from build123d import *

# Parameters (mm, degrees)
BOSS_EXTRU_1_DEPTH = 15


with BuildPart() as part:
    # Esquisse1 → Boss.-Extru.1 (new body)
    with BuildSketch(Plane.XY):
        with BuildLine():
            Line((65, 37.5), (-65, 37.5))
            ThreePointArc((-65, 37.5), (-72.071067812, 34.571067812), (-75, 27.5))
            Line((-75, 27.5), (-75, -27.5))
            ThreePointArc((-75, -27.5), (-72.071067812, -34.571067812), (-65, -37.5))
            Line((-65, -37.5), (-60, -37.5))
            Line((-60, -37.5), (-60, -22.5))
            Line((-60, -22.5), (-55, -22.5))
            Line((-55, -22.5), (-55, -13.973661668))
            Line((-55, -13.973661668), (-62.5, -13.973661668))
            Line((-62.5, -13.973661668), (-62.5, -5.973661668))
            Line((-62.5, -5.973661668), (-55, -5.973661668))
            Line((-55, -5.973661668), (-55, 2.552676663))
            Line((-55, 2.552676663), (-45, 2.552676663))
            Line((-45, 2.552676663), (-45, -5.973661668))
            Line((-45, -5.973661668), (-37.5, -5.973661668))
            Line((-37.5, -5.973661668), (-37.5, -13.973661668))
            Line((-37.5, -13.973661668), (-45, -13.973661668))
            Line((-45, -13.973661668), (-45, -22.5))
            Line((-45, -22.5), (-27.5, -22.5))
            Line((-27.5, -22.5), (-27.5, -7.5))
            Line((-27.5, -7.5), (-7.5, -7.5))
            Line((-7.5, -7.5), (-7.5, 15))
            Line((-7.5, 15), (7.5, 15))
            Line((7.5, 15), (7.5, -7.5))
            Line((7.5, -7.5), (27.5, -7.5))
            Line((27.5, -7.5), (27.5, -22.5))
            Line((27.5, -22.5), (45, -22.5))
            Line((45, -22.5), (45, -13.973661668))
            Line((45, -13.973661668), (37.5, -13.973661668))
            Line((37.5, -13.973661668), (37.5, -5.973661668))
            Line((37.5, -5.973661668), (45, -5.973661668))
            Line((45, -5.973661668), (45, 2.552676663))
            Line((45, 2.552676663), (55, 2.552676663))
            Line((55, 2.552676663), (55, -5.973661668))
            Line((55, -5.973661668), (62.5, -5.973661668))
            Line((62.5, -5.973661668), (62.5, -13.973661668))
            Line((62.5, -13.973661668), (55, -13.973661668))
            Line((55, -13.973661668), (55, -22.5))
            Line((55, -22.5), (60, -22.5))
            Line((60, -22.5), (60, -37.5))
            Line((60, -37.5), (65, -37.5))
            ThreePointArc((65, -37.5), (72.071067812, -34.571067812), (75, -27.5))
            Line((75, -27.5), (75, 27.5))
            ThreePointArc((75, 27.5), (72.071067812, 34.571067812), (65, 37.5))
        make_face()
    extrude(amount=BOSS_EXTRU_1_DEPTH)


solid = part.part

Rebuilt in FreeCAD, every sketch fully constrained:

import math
import FreeCAD as App
import Part
import Sketcher

V = App.Vector

doc = App.newDocument("Part")
body = doc.addObject("PartDesign::Body", "Body")

sketch1 = doc.addObject("Sketcher::SketchObject", "Sketch")
body.addObject(sketch1)
sketch1.AttachmentSupport = (doc.XY_Plane, [""])
sketch1.MapMode = "FlatFace"
sketch1.addGeometry([
    Part.LineSegment(V(65, 37.5, 0), V(-65, 37.5, 0)),
    Part.ArcOfCircle(Part.Circle(V(-65, 27.5, 0), V(0, 0, 1), 10), math.radians(90), math.radians(180)),
    Part.LineSegment(V(-75, 27.5, 0), V(-75, -27.5, 0)),
    Part.ArcOfCircle(Part.Circle(V(-65, -27.5, 0), V(0, 0, 1), 10), math.radians(180), math.radians(270)),
    Part.LineSegment(V(-65, -37.5, 0), V(-60, -37.5, 0)),
    Part.LineSegment(V(-60, -37.5, 0), V(-60, -22.5, 0)),
    Part.LineSegment(V(-60, -22.5, 0), V(-55, -22.5, 0)),
    Part.LineSegment(V(-55, -22.5, 0), V(-55, -13.973662, 0)),
    Part.LineSegment(V(-55, -13.973662, 0), V(-62.5, -13.973662, 0)),
    Part.LineSegment(V(-62.5, -13.973662, 0), V(-62.5, -5.973662, 0)),
    Part.LineSegment(V(-62.5, -5.973662, 0), V(-55, -5.973662, 0)),
    Part.LineSegment(V(-55, -5.973662, 0), V(-55, 2.552677, 0)),
    Part.LineSegment(V(-55, 2.552677, 0), V(-45, 2.552677, 0)),
    Part.LineSegment(V(-45, 2.552677, 0), V(-45, -5.973662, 0)),
    Part.LineSegment(V(-45, -5.973662, 0), V(-37.5, -5.973662, 0)),
    Part.LineSegment(V(-37.5, -5.973662, 0), V(-37.5, -13.973662, 0)),
    Part.LineSegment(V(-37.5, -13.973662, 0), V(-45, -13.973662, 0)),
    Part.LineSegment(V(-45, -13.973662, 0), V(-45, -22.5, 0)),
    Part.LineSegment(V(-45, -22.5, 0), V(-27.5, -22.5, 0)),
    Part.LineSegment(V(-27.5, -22.5, 0), V(-27.5, -7.5, 0)),
    Part.LineSegment(V(-27.5, -7.5, 0), V(-7.5, -7.5, 0)),
    Part.LineSegment(V(-7.5, -7.5, 0), V(-7.5, 15, 0)),
    Part.LineSegment(V(-7.5, 15, 0), V(7.5, 15, 0)),
    Part.LineSegment(V(7.5, 15, 0), V(7.5, -7.5, 0)),
    Part.LineSegment(V(7.5, -7.5, 0), V(27.5, -7.5, 0)),
    Part.LineSegment(V(27.5, -7.5, 0), V(27.5, -22.5, 0)),
    Part.LineSegment(V(27.5, -22.5, 0), V(45, -22.5, 0)),
    Part.LineSegment(V(45, -22.5, 0), V(45, -13.973662, 0)),
    Part.LineSegment(V(45, -13.973662, 0), V(37.5, -13.973662, 0)),
    Part.LineSegment(V(37.5, -13.973662, 0), V(37.5, -5.973662, 0)),
    Part.LineSegment(V(37.5, -5.973662, 0), V(45, -5.973662, 0)),
    Part.LineSegment(V(45, -5.973662, 0), V(45, 2.552677, 0)),
    Part.LineSegment(V(45, 2.552677, 0), V(55, 2.552677, 0)),
    Part.LineSegment(V(55, 2.552677, 0), V(55, -5.973662, 0)),
    Part.LineSegment(V(55, -5.973662, 0), V(62.5, -5.973662, 0)),
    Part.LineSegment(V(62.5, -5.973662, 0), V(62.5, -13.973662, 0)),
    Part.LineSegment(V(62.5, -13.973662, 0), V(55, -13.973662, 0)),
    Part.LineSegment(V(55, -13.973662, 0), V(55, -22.5, 0)),
    Part.LineSegment(V(55, -22.5, 0), V(60, -22.5, 0)),
    Part.LineSegment(V(60, -22.5, 0), V(60, -37.5, 0)),
    Part.LineSegment(V(60, -37.5, 0), V(65, -37.5, 0)),
    Part.ArcOfCircle(Part.Circle(V(65, -27.5, 0), V(0, 0, 1), 10), math.radians(-90), math.radians(0)),
    Part.LineSegment(V(75, -27.5, 0), V(75, 27.5, 0)),
    Part.ArcOfCircle(Part.Circle(V(65, 27.5, 0), V(0, 0, 1), 10), math.radians(0), math.radians(90)),
], False)
sketch1.addConstraint([
    Sketcher.Constraint("Tangent", 0, 2, 1, 1),
    Sketcher.Constraint("Tangent", 1, 2, 2, 1),
    Sketcher.Constraint("Tangent", 2, 2, 3, 1),
    Sketcher.Constraint("Tangent", 3, 2, 4, 1),
    Sketcher.Constraint("Coincident", 4, 2, 5, 1),
    Sketcher.Constraint("Coincident", 5, 2, 6, 1),
    Sketcher.Constraint("Coincident", 6, 2, 7, 1),
    Sketcher.Constraint("Coincident", 7, 2, 8, 1),
    Sketcher.Constraint("Coincident", 8, 2, 9, 1),
    Sketcher.Constraint("Coincident", 9, 2, 10, 1),
    Sketcher.Constraint("Coincident", 10, 2, 11, 1),
    Sketcher.Constraint("Coincident", 11, 2, 12, 1),
    Sketcher.Constraint("Coincident", 12, 2, 13, 1),
    Sketcher.Constraint("Coincident", 13, 2, 14, 1),
    Sketcher.Constraint("Coincident", 14, 2, 15, 1),
    Sketcher.Constraint("Coincident", 15, 2, 16, 1),
    Sketcher.Constraint("Coincident", 16, 2, 17, 1),
    Sketcher.Constraint("Coincident", 17, 2, 18, 1),
    Sketcher.Constraint("Coincident", 18, 2, 19, 1),
    Sketcher.Constraint("Coincident", 19, 2, 20, 1),
    Sketcher.Constraint("Coincident", 20, 2, 21, 1),
    Sketcher.Constraint("Coincident", 21, 2, 22, 1),
    Sketcher.Constraint("Coincident", 22, 2, 23, 1),
    Sketcher.Constraint("Coincident", 23, 2, 24, 1),
    Sketcher.Constraint("Coincident", 24, 2, 25, 1),
    Sketcher.Constraint("Coincident", 25, 2, 26, 1),
    Sketcher.Constraint("Coincident", 26, 2, 27, 1),
    Sketcher.Constraint("Coincident", 27, 2, 28, 1),
    Sketcher.Constraint("Coincident", 28, 2, 29, 1),
    Sketcher.Constraint("Coincident", 29, 2, 30, 1),
    Sketcher.Constraint("Coincident", 30, 2, 31, 1),
    Sketcher.Constraint("Coincident", 31, 2, 32, 1),
    Sketcher.Constraint("Coincident", 32, 2, 33, 1),
    Sketcher.Constraint("Coincident", 33, 2, 34, 1),
    Sketcher.Constraint("Coincident", 34, 2, 35, 1),
    Sketcher.Constraint("Coincident", 35, 2, 36, 1),
    Sketcher.Constraint("Coincident", 36, 2, 37, 1),
    Sketcher.Constraint("Coincident", 37, 2, 38, 1),
    Sketcher.Constraint("Coincident", 38, 2, 39, 1),
    Sketcher.Constraint("Coincident", 39, 2, 40, 1),
    Sketcher.Constraint("Tangent", 40, 2, 41, 1),
    Sketcher.Constraint("Tangent", 41, 2, 42, 1),
    Sketcher.Constraint("Tangent", 42, 2, 43, 1),
    Sketcher.Constraint("Tangent", 43, 2, 0, 1),
    Sketcher.Constraint("Horizontal", 0),
    Sketcher.Constraint("Vertical", 2),
    Sketcher.Constraint("Horizontal", 4),
    Sketcher.Constraint("Vertical", 5),
    Sketcher.Constraint("Horizontal", 6),
    Sketcher.Constraint("Vertical", 7),
    Sketcher.Constraint("Horizontal", 8),
    Sketcher.Constraint("Vertical", 9),
    Sketcher.Constraint("Horizontal", 10),
    Sketcher.Constraint("Vertical", 11),
    Sketcher.Constraint("Horizontal", 12),
    Sketcher.Constraint("Vertical", 13),
    Sketcher.Constraint("Horizontal", 14),
    Sketcher.Constraint("Vertical", 15),
    Sketcher.Constraint("Horizontal", 16),
    Sketcher.Constraint("Vertical", 17),
    Sketcher.Constraint("Horizontal", 18),
    Sketcher.Constraint("Vertical", 19),
    Sketcher.Constraint("Horizontal", 20),
    Sketcher.Constraint("Vertical", 21),
    Sketcher.Constraint("Horizontal", 22),
    Sketcher.Constraint("Vertical", 23),
    Sketcher.Constraint("Horizontal", 24),
    Sketcher.Constraint("Vertical", 25),
    Sketcher.Constraint("Horizontal", 26),
    Sketcher.Constraint("Vertical", 27),
    Sketcher.Constraint("Horizontal", 28),
    Sketcher.Constraint("Vertical", 29),
    Sketcher.Constraint("Horizontal", 30),
    Sketcher.Constraint("Vertical", 31),
    Sketcher.Constraint("Horizontal", 32),
    Sketcher.Constraint("Vertical", 33),
    Sketcher.Constraint("Horizontal", 34),
    Sketcher.Constraint("Vertical", 35),
    Sketcher.Constraint("Horizontal", 36),
    Sketcher.Constraint("Vertical", 37),
    Sketcher.Constraint("Horizontal", 38),
    Sketcher.Constraint("Vertical", 39),
    Sketcher.Constraint("Horizontal", 40),
    Sketcher.Constraint("Vertical", 42),
    Sketcher.Constraint("Equal", 1, 3),
    Sketcher.Constraint("Equal", 3, 41),
    Sketcher.Constraint("Equal", 41, 43),
    Sketcher.Constraint("Symmetric", 1, 3, 41, 3, -1, 1),
    Sketcher.Constraint("Symmetric", 20, 2, 23, 2, -2),
    Sketcher.Constraint("Symmetric", 18, 2, 25, 2, -2),
    Sketcher.Constraint("Symmetric", 16, 2, 27, 2, -2),
    Sketcher.Constraint("Symmetric", 14, 2, 29, 2, -2),
    Sketcher.Constraint("Symmetric", 12, 2, 31, 2, -2),
    Sketcher.Constraint("Symmetric", 10, 2, 33, 2, -2),
    Sketcher.Constraint("Symmetric", 8, 2, 35, 2, -2),
    Sketcher.Constraint("Symmetric", 6, 2, 37, 2, -2),
    Sketcher.Constraint("Symmetric", 4, 2, 39, 2, -2),
    Sketcher.Constraint("Horizontal", 10, 2, 13, 2),
    Sketcher.Constraint("Horizontal", 8, 2, 15, 2),
    Sketcher.Constraint("Horizontal", 6, 2, 17, 2),
    Sketcher.Constraint("Vertical", 7, 2, 10, 2),
    Sketcher.Constraint("Vertical", 13, 2, 16, 2),
    Sketcher.Constraint("Equal", 4, 6),
    Sketcher.Constraint("Equal", 10, 14),
    Sketcher.Constraint("Equal", 22, 5),
    Sketcher.Constraint("Equal", 7, 11),
    Sketcher.Constraint("Equal", 5, 19),
    Sketcher.Constraint("Radius", 1, 10.0),
    Sketcher.Constraint("DistanceX", 0, 2, 0, 1, 130.0),
    Sketcher.Constraint("DistanceX", 4, 1, 4, 2, 5.0),
    Sketcher.Constraint("DistanceX", 12, 1, 12, 2, 10.0),
    Sketcher.Constraint("DistanceX", 20, 1, 20, 2, 20.0),
    Sketcher.Constraint("DistanceX", 22, 1, 22, 2, 15.0),
    Sketcher.Constraint("DistanceY", 2, 2, 2, 1, 55.0),
    Sketcher.Constraint("DistanceY", 9, 1, 9, 2, 8.0),
    Sketcher.Constraint("DistanceX", 8, 2, 8, 1, 7.5),
    Sketcher.Constraint("DistanceY", 21, 1, 21, 2, 22.5),
    Sketcher.Constraint("DistanceY", 7, 1, 7, 2, 8.526338),
])
pad1 = doc.addObject("PartDesign::Pad", "Pad")
body.addObject(pad1)
pad1.Profile = sketch1
pad1.Length = 15

doc.recompute()
